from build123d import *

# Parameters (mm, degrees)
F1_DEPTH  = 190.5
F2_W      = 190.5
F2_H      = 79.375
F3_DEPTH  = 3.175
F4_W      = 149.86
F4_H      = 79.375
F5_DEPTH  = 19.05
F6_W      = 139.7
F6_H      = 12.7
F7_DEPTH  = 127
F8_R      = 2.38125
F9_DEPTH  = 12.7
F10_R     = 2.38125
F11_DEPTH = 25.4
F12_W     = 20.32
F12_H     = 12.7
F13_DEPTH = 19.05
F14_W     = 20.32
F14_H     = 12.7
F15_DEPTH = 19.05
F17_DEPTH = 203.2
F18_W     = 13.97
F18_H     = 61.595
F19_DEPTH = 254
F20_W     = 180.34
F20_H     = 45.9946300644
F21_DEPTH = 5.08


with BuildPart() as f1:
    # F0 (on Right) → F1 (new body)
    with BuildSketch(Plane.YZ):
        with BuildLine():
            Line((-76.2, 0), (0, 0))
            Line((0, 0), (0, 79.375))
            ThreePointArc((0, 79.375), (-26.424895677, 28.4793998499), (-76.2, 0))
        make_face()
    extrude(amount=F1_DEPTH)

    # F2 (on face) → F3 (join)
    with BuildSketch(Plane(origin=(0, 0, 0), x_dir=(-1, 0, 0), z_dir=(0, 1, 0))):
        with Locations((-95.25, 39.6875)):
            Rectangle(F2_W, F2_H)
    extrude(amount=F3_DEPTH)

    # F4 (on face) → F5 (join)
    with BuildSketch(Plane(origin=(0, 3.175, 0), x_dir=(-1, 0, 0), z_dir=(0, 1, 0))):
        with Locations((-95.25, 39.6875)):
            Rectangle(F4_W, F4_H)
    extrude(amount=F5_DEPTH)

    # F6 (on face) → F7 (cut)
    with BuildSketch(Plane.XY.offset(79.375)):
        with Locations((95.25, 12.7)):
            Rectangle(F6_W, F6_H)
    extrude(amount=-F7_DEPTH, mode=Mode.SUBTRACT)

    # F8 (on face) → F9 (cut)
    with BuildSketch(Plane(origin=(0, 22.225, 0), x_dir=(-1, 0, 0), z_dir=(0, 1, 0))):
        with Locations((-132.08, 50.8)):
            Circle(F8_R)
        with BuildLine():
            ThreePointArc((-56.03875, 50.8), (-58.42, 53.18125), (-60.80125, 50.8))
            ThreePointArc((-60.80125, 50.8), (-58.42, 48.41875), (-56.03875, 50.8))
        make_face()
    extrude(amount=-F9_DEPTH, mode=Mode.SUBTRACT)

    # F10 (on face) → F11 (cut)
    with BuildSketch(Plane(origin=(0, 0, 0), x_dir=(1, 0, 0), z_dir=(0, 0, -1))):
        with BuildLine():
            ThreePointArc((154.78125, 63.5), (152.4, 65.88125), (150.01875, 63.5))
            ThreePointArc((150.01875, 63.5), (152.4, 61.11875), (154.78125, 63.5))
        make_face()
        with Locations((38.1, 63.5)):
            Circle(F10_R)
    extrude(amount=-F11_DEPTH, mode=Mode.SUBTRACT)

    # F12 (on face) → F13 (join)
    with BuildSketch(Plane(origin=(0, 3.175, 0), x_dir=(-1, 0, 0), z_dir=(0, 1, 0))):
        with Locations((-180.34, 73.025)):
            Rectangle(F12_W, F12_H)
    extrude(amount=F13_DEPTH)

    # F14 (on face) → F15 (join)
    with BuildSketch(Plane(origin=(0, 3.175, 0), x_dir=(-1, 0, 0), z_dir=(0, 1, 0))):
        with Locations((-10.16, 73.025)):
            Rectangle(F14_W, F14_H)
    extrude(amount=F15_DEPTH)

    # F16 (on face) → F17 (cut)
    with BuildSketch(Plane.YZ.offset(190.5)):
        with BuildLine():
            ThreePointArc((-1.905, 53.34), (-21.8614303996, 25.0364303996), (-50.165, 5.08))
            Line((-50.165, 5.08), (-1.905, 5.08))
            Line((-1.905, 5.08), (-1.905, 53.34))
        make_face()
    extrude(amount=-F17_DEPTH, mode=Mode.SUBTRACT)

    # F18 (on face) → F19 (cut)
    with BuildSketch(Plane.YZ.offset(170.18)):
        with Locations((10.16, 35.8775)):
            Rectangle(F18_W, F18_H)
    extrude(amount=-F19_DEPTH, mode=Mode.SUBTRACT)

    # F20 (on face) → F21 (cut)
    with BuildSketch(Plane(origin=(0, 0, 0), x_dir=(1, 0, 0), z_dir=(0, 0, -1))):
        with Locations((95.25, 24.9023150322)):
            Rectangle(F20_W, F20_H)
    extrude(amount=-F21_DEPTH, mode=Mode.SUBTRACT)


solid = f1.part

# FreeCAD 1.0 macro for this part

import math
import FreeCAD as App
import Part
import Sketcher

V = App.Vector
Q = App.Units.Quantity

doc = App.newDocument("Part")
body = doc.addObject("PartDesign::Body", "Body")

# Sketch on YZ plane
sketch1 = body.newObject("Sketcher::SketchObject", "Sketch")
sketch1.AttachmentSupport = (doc.getObject("YZ_Plane"), [""])
sketch1.MapMode = "FlatFace"
sketch1.addGeometry(Part.LineSegment(V(-76.2, 0, 0), V(0, 0, 0)), False)
sketch1.addGeometry(Part.LineSegment(V(0, 0, 0), V(0, 79.375, 0)), False)
sketch1.addGeometry(Part.ArcOfCircle(Part.Circle(V(-99.717847, 98.840634, 0), V(0, 0, 1), 101.6), math.radians(-76.616081), math.radians(-11.045641)), False)
sketch1.addConstraint(Sketcher.Constraint("Coincident", 0, 2, 1, 1))
sketch1.addConstraint(Sketcher.Constraint("Coincident", 1, 2, 2, 2))
sketch1.addConstraint(Sketcher.Constraint("Coincident", 2, 1, 0, 1))
sketch1.addConstraint(Sketcher.Constraint("Horizontal", 0))
sketch1.addConstraint(Sketcher.Constraint("Vertical", 1))
sketch1.addConstraint(Sketcher.Constraint("Coincident", 0, 2, -1, 1))
sketch1.addConstraint(Sketcher.Constraint("Radius", 2, Q("4 in")))
sketch1.addConstraint(Sketcher.Constraint("DistanceX", 0, 1, 0, 2, Q("3 in")))
sketch1.addConstraint(Sketcher.Constraint("DistanceY", 1, 1, 1, 2, Q("3.125 in")))
pad1 = body.newObject("PartDesign::Pad", "Pad")
pad1.Profile = sketch1
pad1.Length = Q("7.5 in")

# Sketch on XZ plane
sketch2 = body.newObject("Sketcher::SketchObject", "Sketch001")
sketch2.AttachmentSupport = (doc.getObject("XZ_Plane"), [""])
sketch2.MapMode = "FlatFace"
sketch2.addGeometry(Part.LineSegment(V(190.5, 79.375, 0), V(190.5, 0, 0)), False)
sketch2.addGeometry(Part.LineSegment(V(190.5, 0, 0), V(0, 0, 0)), False)
sketch2.addGeometry(Part.LineSegment(V(0, 0, 0), V(0, 79.375, 0)), False)
sketch2.addGeometry(Part.LineSegment(V(0, 79.375, 0), V(190.5, 79.375, 0)), False)
sketch2.addConstraint(Sketcher.Constraint("Coincident", 0, 2, 1, 1))
sketch2.addConstraint(Sketcher.Constraint("Coincident", 1, 2, 2, 1))
sketch2.addConstraint(Sketcher.Constraint("Coincident", 2, 2, 3, 1))
sketch2.addConstraint(Sketcher.Constraint("Coincident", 3, 2, 0, 1))
sketch2.addConstraint(Sketcher.Constraint("Vertical", 0))
sketch2.addConstraint(Sketcher.Constraint("Horizontal", 1))
sketch2.addConstraint(Sketcher.Constraint("Vertical", 2))
sketch2.addConstraint(Sketcher.Constraint("Horizontal", 3))
sketch2.addConstraint(Sketcher.Constraint("Coincident", 1, 2, -1, 1))
sketch2.addConstraint(Sketcher.Constraint("DistanceX", 1, 2, 1, 1, Q("7.5 in")))
sketch2.addConstraint(Sketcher.Constraint("DistanceY", 0, 2, 0, 1, Q("3.125 in")))
pad2 = body.newObject("PartDesign::Pad", "Pad001")
pad2.Profile = sketch2
pad2.Length = Q("0.125 in")
pad2.Reversed = True

# Sketch on XZ plane
sketch3 = body.newObject("Sketcher::SketchObject", "Sketch002")
sketch3.AttachmentSupport = (doc.getObject("XZ_Plane"), [""])
sketch3.MapMode = "FlatFace"
sketch3.AttachmentOffset = App.Placement(V(0, 0, -0.125 * 25.4), App.Rotation())
sketch3.addGeometry(Part.LineSegment(V(170.18, 79.375, 0), V(170.18, 0, 0)), False)
sketch3.addGeometry(Part.LineSegment(V(170.18, 0, 0), V(20.32, 0, 0)), False)
sketch3.addGeometry(Part.LineSegment(V(20.32, 0, 0), V(20.32, 79.375, 0)), False)
sketch3.addGeometry(Part.LineSegment(V(20.32, 79.375, 0), V(170.18, 79.375, 0)), False)
sketch3.addConstraint(Sketcher.Constraint("Coincident", 0, 2, 1, 1))
sketch3.addConstraint(Sketcher.Constraint("Coincident", 1, 2, 2, 1))
sketch3.addConstraint(Sketcher.Constraint("Coincident", 2, 2, 3, 1))
sketch3.addConstraint(Sketcher.Constraint("Coincident", 3, 2, 0, 1))
sketch3.addConstraint(Sketcher.Constraint("Vertical", 0))
sketch3.addConstraint(Sketcher.Constraint("Horizontal", 1))
sketch3.addConstraint(Sketcher.Constraint("Vertical", 2))
sketch3.addConstraint(Sketcher.Constraint("Horizontal", 3))
sketch3.addConstraint(Sketcher.Constraint("PointOnObject", 0, 2, -1))
sketch3.addConstraint(Sketcher.Constraint("DistanceX", 1, 2, 1, 1, Q("5.9 in")))
sketch3.addConstraint(Sketcher.Constraint("DistanceX", -1, 1, 0, 2, Q("6.7 in")))
sketch3.addConstraint(Sketcher.Constraint("DistanceY", 0, 2, 0, 1, Q("3.125 in")))
pad3 = body.newObject("PartDesign::Pad", "Pad002")
pad3.Profile = sketch3
pad3.Length = Q("0.75 in")
pad3.Reversed = True

# Sketch on XY plane
sketch4 = body.newObject("Sketcher::SketchObject", "Sketch003")
sketch4.AttachmentSupport = (doc.getObject("XY_Plane"), [""])
sketch4.MapMode = "FlatFace"
sketch4.AttachmentOffset = App.Placement(V(0, 0, 3.125 * 25.4), App.Rotation())
sketch4.addGeometry(Part.LineSegment(V(25.4, 19.05, 0), V(25.4, 6.35, 0)), False)
sketch4.addGeometry(Part.LineSegment(V(25.4, 6.35, 0), V(165.1, 6.35, 0)), False)
sketch4.addGeometry(Part.LineSegment(V(165.1, 6.35, 0), V(165.1, 19.05, 0)), False)
sketch4.addGeometry(Part.LineSegment(V(165.1, 19.05, 0), V(25.4, 19.05, 0)), False)
sketch4.addConstraint(Sketcher.Constraint("Coincident", 0, 2, 1, 1))
sketch4.addConstraint(Sketcher.Constraint("Coincident", 1, 2, 2, 1))
sketch4.addConstraint(Sketcher.Constraint("Coincident", 2, 2, 3, 1))
sketch4.addConstraint(Sketcher.Constraint("Coincident", 3, 2, 0, 1))
sketch4.addConstraint(Sketcher.Constraint("Vertical", 0))
sketch4.addConstraint(Sketcher.Constraint("Horizontal", 1))
sketch4.addConstraint(Sketcher.Constraint("Vertical", 2))
sketch4.addConstraint(Sketcher.Constraint("Horizontal", 3))
sketch4.addConstraint(Sketcher.Constraint("DistanceX", 1, 1, 1, 2, Q("5.5 in")))
sketch4.addConstraint(Sketcher.Constraint("DistanceY", 0, 2, 0, 1, Q("0.5 in")))
sketch4.addConstraint(Sketcher.Constraint("DistanceX", -1, 1, 0, 2, Q("1 in")))
sketch4.addConstraint(Sketcher.Constraint("DistanceY", -1, 1, 0, 2, Q("0.25 in")))
pocket1 = body.newObject("PartDesign::Pocket", "Pocket")
pocket1.Profile = sketch4
pocket1.Length = Q("5 in")

# Sketch on XZ plane
sketch5 = body.newObject("Sketcher::SketchObject", "Sketch004")
sketch5.AttachmentSupport = (doc.getObject("XZ_Plane"), [""])
sketch5.MapMode = "FlatFace"
sketch5.AttachmentOffset = App.Placement(V(0, 0, -0.875 * 25.4), App.Rotation())
sketch5.addGeometry(Part.Circle(V(132.08, 50.8, 0), V(0, 0, 1), 2.38125), False)
sketch5.addGeometry(Part.Circle(V(58.42, 50.8, 0), V(0, 0, 1), 2.38125), False)
sketch5.addConstraint(Sketcher.Constraint("Equal", 0, 1))
sketch5.addConstraint(Sketcher.Constraint("Horizontal", 0, 3, 1, 3))
sketch5.addConstraint(Sketcher.Constraint("Diameter", 0, Q("0.1875 in")))
sketch5.addConstraint(Sketcher.Constraint("DistanceY", -1, 1, 0, 3, Q("2 in")))
sketch5.addConstraint(Sketcher.Constraint("DistanceX", -1, 1, 0, 3, Q("5.2 in")))
sketch5.addConstraint(Sketcher.Constraint("DistanceX", -1, 1, 1, 3, Q("2.3 in")))
pocket2 = body.newObject("PartDesign::Pocket", "Pocket001")
pocket2.Profile = sketch5
pocket2.Length = Q("0.5 in")
pocket2.Reversed = True

# Sketch on XY plane
sketch6 = body.newObject("Sketcher::SketchObject", "Sketch005")
sketch6.AttachmentSupport = (doc.getObject("XY_Plane"), [""])
sketch6.MapMode = "FlatFace"
sketch6.addGeometry(Part.Circle(V(152.4, -63.5, 0), V(0, 0, 1), 2.38125), False)
sketch6.addGeometry(Part.Circle(V(38.1, -63.5, 0), V(0, 0, 1), 2.38125), False)
sketch6.addConstraint(Sketcher.Constraint("Equal", 0, 1))
sketch6.addConstraint(Sketcher.Constraint("Horizontal", 0, 3, 1, 3))
sketch6.addConstraint(Sketcher.Constraint("Diameter", 0, Q("0.1875 in")))
sketch6.addConstraint(Sketcher.Constraint("DistanceX", -1, 1, 0, 3, Q("6 in")))
sketch6.addConstraint(Sketcher.Constraint("DistanceY", 0, 3, -1, 1, Q("2.5 in")))
sketch6.addConstraint(Sketcher.Constraint("DistanceX", -1, 1, 1, 3, Q("1.5 in")))
pocket3 = body.newObject("PartDesign::Pocket", "Pocket002")
pocket3.Profile = sketch6
pocket3.Length = Q("1 in")
pocket3.Reversed = True

# Sketch on XZ plane
sketch7 = body.newObject("Sketcher::SketchObject", "Sketch006")
sketch7.AttachmentSupport = (doc.getObject("XZ_Plane"), [""])
sketch7.MapMode = "FlatFace"
sketch7.AttachmentOffset = App.Placement(V(0, 0, -0.125 * 25.4), App.Rotation())
sketch7.addGeometry(Part.LineSegment(V(190.5, 79.375, 0), V(190.5, 66.675, 0)), False)
sketch7.addGeometry(Part.LineSegment(V(190.5, 66.675, 0), V(170.18, 66.675, 0)), False)
sketch7.addGeometry(Part.LineSegment(V(170.18, 66.675, 0), V(170.18, 79.375, 0)), False)
sketch7.addGeometry(Part.LineSegment(V(170.18, 79.375, 0), V(190.5, 79.375, 0)), False)
sketch7.addConstraint(Sketcher.Constraint("Coincident", 0, 2, 1, 1))
sketch7.addConstraint(Sketcher.Constraint("Coincident", 1, 2, 2, 1))
sketch7.addConstraint(Sketcher.Constraint("Coincident", 2, 2, 3, 1))
sketch7.addConstraint(Sketcher.Constraint("Coincident", 3, 2, 0, 1))
sketch7.addConstraint(Sketcher.Constraint("Vertical", 0))
sketch7.addConstraint(Sketcher.Constraint("Horizontal", 1))
sketch7.addConstraint(Sketcher.Constraint("Vertical", 2))
sketch7.addConstraint(Sketcher.Constraint("Horizontal", 3))
sketch7.addConstraint(Sketcher.Constraint("DistanceX", 1, 2, 1, 1, Q("0.8 in")))
sketch7.addConstraint(Sketcher.Constraint("DistanceY", 0, 2, 0, 1, Q("0.5 in")))
sketch7.addConstraint(Sketcher.Constraint("DistanceX", -1, 1, 0, 2, Q("7.5 in")))
sketch7.addConstraint(Sketcher.Constraint("DistanceY", -1, 1, 0, 2, Q("2.625 in")))
pad4 = body.newObject("PartDesign::Pad", "Pad003")
pad4.Profile = sketch7
pad4.Length = Q("0.75 in")
pad4.Reversed = True

# Sketch on XZ plane
sketch8 = body.newObject("Sketcher::SketchObject", "Sketch007")
sketch8.AttachmentSupport = (doc.getObject("XZ_Plane"), [""])
sketch8.MapMode = "FlatFace"
sketch8.AttachmentOffset = App.Placement(V(0, 0, -0.125 * 25.4), App.Rotation())
sketch8.addGeometry(Part.LineSegment(V(20.32, 79.375, 0), V(20.32, 66.675, 0)), False)
sketch8.addGeometry(Part.LineSegment(V(20.32, 66.675, 0), V(0, 66.675, 0)), False)
sketch8.addGeometry(Part.LineSegment(V(0, 66.675, 0), V(0, 79.375, 0)), False)
sketch8.addGeometry(Part.LineSegment(V(0, 79.375, 0), V(20.32, 79.375, 0)), False)
sketch8.addConstraint(Sketcher.Constraint("Coincident", 0, 2, 1, 1))
sketch8.addConstraint(Sketcher.Constraint("Coincident", 1, 2, 2, 1))
sketch8.addConstraint(Sketcher.Constraint("Coincident", 2, 2, 3, 1))
sketch8.addConstraint(Sketcher.Constraint("Coincident", 3, 2, 0, 1))
sketch8.addConstraint(Sketcher.Constraint("Vertical", 0))
sketch8.addConstraint(Sketcher.Constraint("Horizontal", 1))
sketch8.addConstraint(Sketcher.Constraint("Vertical", 2))
sketch8.addConstraint(Sketcher.Constraint("Horizontal", 3))
sketch8.addConstraint(Sketcher.Constraint("PointOnObject", 1, 2, -2))
sketch8.addConstraint(Sketcher.Constraint("DistanceX", 1, 2, 1, 1, Q("0.8 in")))
sketch8.addConstraint(Sketcher.Constraint("DistanceY", 0, 2, 0, 1, Q("0.5 in")))
sketch8.addConstraint(Sketcher.Constraint("DistanceY", -1, 1, 0, 2, Q("2.625 in")))
pad5 = body.newObject("PartDesign::Pad", "Pad004")
pad5.Profile = sketch8
pad5.Length = Q("0.75 in")
pad5.Reversed = True

# Sketch on YZ plane
sketch9 = body.newObject("Sketcher::SketchObject", "Sketch008")
sketch9.AttachmentSupport = (doc.getObject("YZ_Plane"), [""])
sketch9.MapMode = "FlatFace"
sketch9.AttachmentOffset = App.Placement(V(0, 0, 7.5 * 25.4), App.Rotation())
sketch9.addGeometry(Part.ArcOfCircle(Part.Circle(V(-93.703479, 96.878479, 0), V(0, 0, 1), 101.6), math.radians(-64.625799), math.radians(-25.374201)), False)
sketch9.addGeometry(Part.LineSegment(V(-50.165, 5.08, 0), V(-1.905, 5.08, 0)), False)
sketch9.addGeometry(Part.LineSegment(V(-1.905, 5.08, 0), V(-1.905, 53.34, 0)), False)
sketch9.addConstraint(Sketcher.Constraint("Coincident", 0, 1, 1, 1))
sketch9.addConstraint(Sketcher.Constraint("Coincident", 1, 2, 2, 1))
sketch9.addConstraint(Sketcher.Constraint("Coincident", 2, 2, 0, 2))
sketch9.addConstraint(Sketcher.Constraint("Horizontal", 1))
sketch9.addConstraint(Sketcher.Constraint("Vertical", 2))
sketch9.addConstraint(Sketcher.Constraint("Equal", 1, 2))
sketch9.addConstraint(Sketcher.Constraint("Radius", 0, Q("4 in")))
sketch9.addConstraint(Sketcher.Constraint("DistanceX", 1, 1, 1, 2, Q("1.9 in")))
sketch9.addConstraint(Sketcher.Constraint("DistanceY", -1, 1, 0, 1, Q("0.2 in")))
sketch9.addConstraint(Sketcher.Constraint("DistanceX", 0, 1, -1, 1, Q("1.975 in")))
pocket4 = body.newObject("PartDesign::Pocket", "Pocket003")
pocket4.Profile = sketch9
pocket4.Length = Q("8 in")

# Sketch on YZ plane
sketch10 = body.newObject("Sketcher::SketchObject", "Sketch009")
sketch10.AttachmentSupport = (doc.getObject("YZ_Plane"), [""])
sketch10.MapMode = "FlatFace"
sketch10.AttachmentOffset = App.Placement(V(0, 0, 6.7 * 25.4), App.Rotation())
sketch10.addGeometry(Part.LineSegment(V(3.175, 66.675, 0), V(3.175, 5.08, 0)), False)
sketch10.addGeometry(Part.LineSegment(V(3.175, 5.08, 0), V(17.145, 5.08, 0)), False)
sketch10.addGeometry(Part.LineSegment(V(17.145, 5.08, 0), V(17.145, 66.675, 0)), False)
sketch10.addGeometry(Part.LineSegment(V(17.145, 66.675, 0), V(3.175, 66.675, 0)), False)
sketch10.addConstraint(Sketcher.Constraint("Coincident", 0, 2, 1, 1))
sketch10.addConstraint(Sketcher.Constraint("Coincident", 1, 2, 2, 1))
sketch10.addConstraint(Sketcher.Constraint("Coincident", 2, 2, 3, 1))
sketch10.addConstraint(Sketcher.Constraint("Coincident", 3, 2, 0, 1))
sketch10.addConstraint(Sketcher.Constraint("Vertical", 0))
sketch10.addConstraint(Sketcher.Constraint("Horizontal", 1))
sketch10.addConstraint(Sketcher.Constraint("Vertical", 2))
sketch10.addConstraint(Sketcher.Constraint("Horizontal", 3))
sketch10.addConstraint(Sketcher.Constraint("DistanceX", 1, 1, 1, 2, Q("0.55 in")))
sketch10.addConstraint(Sketcher.Constraint("DistanceY", -1, 1, 0, 2, Q("0.2 in")))
sketch10.addConstraint(Sketcher.Constraint("DistanceY", 0, 2, 0, 1, Q("2.425 in")))
sketch10.addConstraint(Sketcher.Constraint("DistanceX", -1, 1, 0, 2, Q("0.125 in")))
pocket5 = body.newObject("PartDesign::Pocket", "Pocket004")
pocket5.Profile = sketch10
pocket5.Length = Q("10 in")

# Sketch on XY plane
sketch11 = body.newObject("Sketcher::SketchObject", "Sketch010")
sketch11.AttachmentSupport = (doc.getObject("XY_Plane"), [""])
sketch11.MapMode = "FlatFace"
sketch11.addGeometry(Part.LineSegment(V(5.08, -47.89963, 0), V(5.08, -1.905, 0)), False)
sketch11.addGeometry(Part.LineSegment(V(5.08, -1.905, 0), V(185.42, -1.905, 0)), False)
sketch11.addGeometry(Part.LineSegment(V(185.42, -1.905, 0), V(185.42, -47.89963, 0)), False)
sketch11.addGeometry(Part.LineSegment(V(185.42, -47.89963, 0), V(5.08, -47.89963, 0)), False)
sketch11.addConstraint(Sketcher.Constraint("Coincident", 0, 2, 1, 1))
sketch11.addConstraint(Sketcher.Constraint("Coincident", 1, 2, 2, 1))
sketch11.addConstraint(Sketcher.Constraint("Coincident", 2, 2, 3, 1))
sketch11.addConstraint(Sketcher.Constraint("Coincident", 3, 2, 0, 1))
sketch11.addConstraint(Sketcher.Constraint("Vertical", 0))
sketch11.addConstraint(Sketcher.Constraint("Horizontal", 1))
sketch11.addConstraint(Sketcher.Constraint("Vertical", 2))
sketch11.addConstraint(Sketcher.Constraint("Horizontal", 3))
sketch11.addConstraint(Sketcher.Constraint("DistanceX", 1, 1, 1, 2, Q("7.1 in")))
sketch11.addConstraint(Sketcher.Constraint("DistanceX", -1, 1, 0, 2, Q("0.2 in")))
sketch11.addConstraint(Sketcher.Constraint("DistanceY", 0, 2, -1, 1, Q("0.075 in")))
sketch11.addConstraint(Sketcher.Constraint("DistanceY", 0, 1, 0, 2, Q("45.99463 mm")))
pocket6 = body.newObject("PartDesign::Pocket", "Pocket005")
pocket6.Profile = sketch11
pocket6.Length = Q("0.2 in")
pocket6.Reversed = True

doc.recompute()
